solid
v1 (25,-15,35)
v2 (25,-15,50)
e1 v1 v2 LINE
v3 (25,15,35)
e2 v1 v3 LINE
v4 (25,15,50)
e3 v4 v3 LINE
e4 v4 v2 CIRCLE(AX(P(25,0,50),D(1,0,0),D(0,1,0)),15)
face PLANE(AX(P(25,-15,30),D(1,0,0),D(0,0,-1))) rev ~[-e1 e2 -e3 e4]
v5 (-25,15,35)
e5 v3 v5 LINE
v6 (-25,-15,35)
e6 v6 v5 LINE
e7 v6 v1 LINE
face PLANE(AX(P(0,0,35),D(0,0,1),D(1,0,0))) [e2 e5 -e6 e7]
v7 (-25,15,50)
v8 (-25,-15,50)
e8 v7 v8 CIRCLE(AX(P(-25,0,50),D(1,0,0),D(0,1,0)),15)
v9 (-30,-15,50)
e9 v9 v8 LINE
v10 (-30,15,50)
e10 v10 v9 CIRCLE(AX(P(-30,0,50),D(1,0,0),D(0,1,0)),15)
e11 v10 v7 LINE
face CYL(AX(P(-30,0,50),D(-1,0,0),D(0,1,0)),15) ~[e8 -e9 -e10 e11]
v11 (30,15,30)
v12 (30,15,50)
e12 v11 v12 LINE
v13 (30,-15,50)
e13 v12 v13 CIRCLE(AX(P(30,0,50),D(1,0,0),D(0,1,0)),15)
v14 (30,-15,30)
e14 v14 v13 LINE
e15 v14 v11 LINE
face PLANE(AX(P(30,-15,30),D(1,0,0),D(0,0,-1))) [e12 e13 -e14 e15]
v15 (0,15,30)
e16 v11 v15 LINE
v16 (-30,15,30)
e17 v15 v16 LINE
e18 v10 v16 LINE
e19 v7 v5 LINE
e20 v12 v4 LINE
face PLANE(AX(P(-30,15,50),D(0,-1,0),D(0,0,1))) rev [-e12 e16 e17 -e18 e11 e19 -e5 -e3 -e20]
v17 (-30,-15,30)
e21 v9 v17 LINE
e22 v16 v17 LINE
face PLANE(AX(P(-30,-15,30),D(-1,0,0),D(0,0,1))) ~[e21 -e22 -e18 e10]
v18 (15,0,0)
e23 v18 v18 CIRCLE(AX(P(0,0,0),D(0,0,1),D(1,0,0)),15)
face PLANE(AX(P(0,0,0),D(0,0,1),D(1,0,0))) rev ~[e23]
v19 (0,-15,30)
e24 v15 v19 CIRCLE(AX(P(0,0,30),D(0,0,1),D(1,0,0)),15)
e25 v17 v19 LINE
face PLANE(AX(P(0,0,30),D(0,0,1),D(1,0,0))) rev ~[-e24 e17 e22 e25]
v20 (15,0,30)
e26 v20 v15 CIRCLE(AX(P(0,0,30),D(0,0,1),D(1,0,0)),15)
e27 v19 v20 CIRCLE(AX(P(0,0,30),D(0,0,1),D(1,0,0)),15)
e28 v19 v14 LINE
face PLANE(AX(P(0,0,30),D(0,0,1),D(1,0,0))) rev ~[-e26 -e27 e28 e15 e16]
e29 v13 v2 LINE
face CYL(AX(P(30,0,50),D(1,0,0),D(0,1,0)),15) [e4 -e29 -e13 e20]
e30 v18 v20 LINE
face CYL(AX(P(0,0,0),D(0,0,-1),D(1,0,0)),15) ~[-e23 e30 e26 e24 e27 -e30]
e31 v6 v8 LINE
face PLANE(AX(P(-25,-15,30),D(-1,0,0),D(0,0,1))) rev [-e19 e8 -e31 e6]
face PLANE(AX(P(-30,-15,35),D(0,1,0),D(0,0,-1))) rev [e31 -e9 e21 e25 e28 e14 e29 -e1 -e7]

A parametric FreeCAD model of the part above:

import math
import FreeCAD as App
import Part
import Sketcher

V = App.Vector
Q = App.Units.Quantity

doc = App.newDocument("Part")
body = doc.addObject("PartDesign::Body", "Body")

sketch1 = body.newObject("Sketcher::SketchObject", "Sketch")
sketch1.AttachmentSupport = (doc.getObject("XY_Plane"), [""])
sketch1.MapMode = "FlatFace"
sketch1.addGeometry(Part.Circle(V(0, 0, 0), V(0, 0, 1), 15), False)
sketch1.addConstraint([
    Sketcher.Constraint("Coincident", 0, 3, -1, 1),
    Sketcher.Constraint("Diameter", 0, Q("30 mm")),
])
pad1 = body.newObject("PartDesign::Pad", "Pad")
pad1.Profile = sketch1
pad1.Length = 30

sketch2 = body.newObject("Sketcher::SketchObject", "Sketch001")
sketch2.AttachmentSupport = (doc.getObject("XY_Plane"), [""])
sketch2.MapMode = "FlatFace"
sketch2.AttachmentOffset = App.Placement(V(0, 0, 30), App.Rotation())
sketch2.addGeometry([
    Part.LineSegment(V(30, -15, 0), V(30, 15, 0)),
    Part.LineSegment(V(30, 15, 0), V(-30, 15, 0)),
    Part.LineSegment(V(-30, 15, 0), V(-30, -15, 0)),
    Part.LineSegment(V(-30, -15, 0), V(30, -15, 0)),
], False)
sketch2.addConstraint([
    Sketcher.Constraint("Coincident", 0, 2, 1, 1),
    Sketcher.Constraint("Coincident", 1, 2, 2, 1),
    Sketcher.Constraint("Coincident", 2, 2, 3, 1),
    Sketcher.Constraint("Coincident", 3, 2, 0, 1),
    Sketcher.Constraint("Vertical", 0),
    Sketcher.Constraint("Horizontal", 1),
    Sketcher.Constraint("Vertical", 2),
    Sketcher.Constraint("Horizontal", 3),
    Sketcher.Constraint("Symmetric", 0, 2, 2, 2, -1, 1),
    Sketcher.Constraint("DistanceX", 1, 2, 1, 1, Q("60 mm")),
    Sketcher.Constraint("DistanceY", 0, 1, 0, 2, Q("30 mm")),
])
pad2 = body.newObject("PartDesign::Pad", "Pad001")
pad2.Profile = sketch2
pad2.Length = 5

sketch3 = body.newObject("Sketcher::SketchObject", "Sketch002")
sketch3.AttachmentSupport = (doc.getObject("YZ_Plane"), [""])
sketch3.MapMode = "FlatFace"
sketch3.AttachmentOffset = App.Placement(V(0, 0, 30), App.Rotation())
sketch3.addGeometry([
    Part.LineSegment(V(-15, 50, 0), V(-15, 35, 0)),
    Part.LineSegment(V(-15, 35, 0), V(15, 35, 0)),
    Part.LineSegment(V(15, 35, 0), V(15, 50, 0)),
    Part.ArcOfCircle(Part.Circle(V(0, 50, 0), V(0, 0, 1), 15), math.radians(0), math.radians(180)),
], False)
sketch3.addConstraint([
    Sketcher.Constraint("Coincident", 0, 2, 1, 1),
    Sketcher.Constraint("Coincident", 1, 2, 2, 1),
    Sketcher.Constraint("Tangent", 2, 2, 3, 1),
    Sketcher.Constraint("Tangent", 3, 2, 0, 1),
    Sketcher.Constraint("Vertical", 0),
    Sketcher.Constraint("Horizontal", 1),
    Sketcher.Constraint("Vertical", 2),
    Sketcher.Constraint("PointOnObject", 3, 3, -2),
    Sketcher.Constraint("Radius", 3, Q("15 mm")),
    Sketcher.Constraint("DistanceY", 0, 2, 0, 1, Q("15 mm")),
    Sketcher.Constraint("DistanceY", -1, 1, 3, 3, Q("50 mm")),
])
pad3 = body.newObject("PartDesign::Pad", "Pad002")
pad3.Profile = sketch3
pad3.Length = 5
pad3.Reversed = True
doc.recompute()

mirrored = body.newObject("PartDesign::Mirrored", "Mirrored")
mirrored.Originals = [pad3]
mirrored.MirrorPlane = (doc.getObject("YZ_Plane"), [""])
body.Tip = mirrored

doc.recompute()
